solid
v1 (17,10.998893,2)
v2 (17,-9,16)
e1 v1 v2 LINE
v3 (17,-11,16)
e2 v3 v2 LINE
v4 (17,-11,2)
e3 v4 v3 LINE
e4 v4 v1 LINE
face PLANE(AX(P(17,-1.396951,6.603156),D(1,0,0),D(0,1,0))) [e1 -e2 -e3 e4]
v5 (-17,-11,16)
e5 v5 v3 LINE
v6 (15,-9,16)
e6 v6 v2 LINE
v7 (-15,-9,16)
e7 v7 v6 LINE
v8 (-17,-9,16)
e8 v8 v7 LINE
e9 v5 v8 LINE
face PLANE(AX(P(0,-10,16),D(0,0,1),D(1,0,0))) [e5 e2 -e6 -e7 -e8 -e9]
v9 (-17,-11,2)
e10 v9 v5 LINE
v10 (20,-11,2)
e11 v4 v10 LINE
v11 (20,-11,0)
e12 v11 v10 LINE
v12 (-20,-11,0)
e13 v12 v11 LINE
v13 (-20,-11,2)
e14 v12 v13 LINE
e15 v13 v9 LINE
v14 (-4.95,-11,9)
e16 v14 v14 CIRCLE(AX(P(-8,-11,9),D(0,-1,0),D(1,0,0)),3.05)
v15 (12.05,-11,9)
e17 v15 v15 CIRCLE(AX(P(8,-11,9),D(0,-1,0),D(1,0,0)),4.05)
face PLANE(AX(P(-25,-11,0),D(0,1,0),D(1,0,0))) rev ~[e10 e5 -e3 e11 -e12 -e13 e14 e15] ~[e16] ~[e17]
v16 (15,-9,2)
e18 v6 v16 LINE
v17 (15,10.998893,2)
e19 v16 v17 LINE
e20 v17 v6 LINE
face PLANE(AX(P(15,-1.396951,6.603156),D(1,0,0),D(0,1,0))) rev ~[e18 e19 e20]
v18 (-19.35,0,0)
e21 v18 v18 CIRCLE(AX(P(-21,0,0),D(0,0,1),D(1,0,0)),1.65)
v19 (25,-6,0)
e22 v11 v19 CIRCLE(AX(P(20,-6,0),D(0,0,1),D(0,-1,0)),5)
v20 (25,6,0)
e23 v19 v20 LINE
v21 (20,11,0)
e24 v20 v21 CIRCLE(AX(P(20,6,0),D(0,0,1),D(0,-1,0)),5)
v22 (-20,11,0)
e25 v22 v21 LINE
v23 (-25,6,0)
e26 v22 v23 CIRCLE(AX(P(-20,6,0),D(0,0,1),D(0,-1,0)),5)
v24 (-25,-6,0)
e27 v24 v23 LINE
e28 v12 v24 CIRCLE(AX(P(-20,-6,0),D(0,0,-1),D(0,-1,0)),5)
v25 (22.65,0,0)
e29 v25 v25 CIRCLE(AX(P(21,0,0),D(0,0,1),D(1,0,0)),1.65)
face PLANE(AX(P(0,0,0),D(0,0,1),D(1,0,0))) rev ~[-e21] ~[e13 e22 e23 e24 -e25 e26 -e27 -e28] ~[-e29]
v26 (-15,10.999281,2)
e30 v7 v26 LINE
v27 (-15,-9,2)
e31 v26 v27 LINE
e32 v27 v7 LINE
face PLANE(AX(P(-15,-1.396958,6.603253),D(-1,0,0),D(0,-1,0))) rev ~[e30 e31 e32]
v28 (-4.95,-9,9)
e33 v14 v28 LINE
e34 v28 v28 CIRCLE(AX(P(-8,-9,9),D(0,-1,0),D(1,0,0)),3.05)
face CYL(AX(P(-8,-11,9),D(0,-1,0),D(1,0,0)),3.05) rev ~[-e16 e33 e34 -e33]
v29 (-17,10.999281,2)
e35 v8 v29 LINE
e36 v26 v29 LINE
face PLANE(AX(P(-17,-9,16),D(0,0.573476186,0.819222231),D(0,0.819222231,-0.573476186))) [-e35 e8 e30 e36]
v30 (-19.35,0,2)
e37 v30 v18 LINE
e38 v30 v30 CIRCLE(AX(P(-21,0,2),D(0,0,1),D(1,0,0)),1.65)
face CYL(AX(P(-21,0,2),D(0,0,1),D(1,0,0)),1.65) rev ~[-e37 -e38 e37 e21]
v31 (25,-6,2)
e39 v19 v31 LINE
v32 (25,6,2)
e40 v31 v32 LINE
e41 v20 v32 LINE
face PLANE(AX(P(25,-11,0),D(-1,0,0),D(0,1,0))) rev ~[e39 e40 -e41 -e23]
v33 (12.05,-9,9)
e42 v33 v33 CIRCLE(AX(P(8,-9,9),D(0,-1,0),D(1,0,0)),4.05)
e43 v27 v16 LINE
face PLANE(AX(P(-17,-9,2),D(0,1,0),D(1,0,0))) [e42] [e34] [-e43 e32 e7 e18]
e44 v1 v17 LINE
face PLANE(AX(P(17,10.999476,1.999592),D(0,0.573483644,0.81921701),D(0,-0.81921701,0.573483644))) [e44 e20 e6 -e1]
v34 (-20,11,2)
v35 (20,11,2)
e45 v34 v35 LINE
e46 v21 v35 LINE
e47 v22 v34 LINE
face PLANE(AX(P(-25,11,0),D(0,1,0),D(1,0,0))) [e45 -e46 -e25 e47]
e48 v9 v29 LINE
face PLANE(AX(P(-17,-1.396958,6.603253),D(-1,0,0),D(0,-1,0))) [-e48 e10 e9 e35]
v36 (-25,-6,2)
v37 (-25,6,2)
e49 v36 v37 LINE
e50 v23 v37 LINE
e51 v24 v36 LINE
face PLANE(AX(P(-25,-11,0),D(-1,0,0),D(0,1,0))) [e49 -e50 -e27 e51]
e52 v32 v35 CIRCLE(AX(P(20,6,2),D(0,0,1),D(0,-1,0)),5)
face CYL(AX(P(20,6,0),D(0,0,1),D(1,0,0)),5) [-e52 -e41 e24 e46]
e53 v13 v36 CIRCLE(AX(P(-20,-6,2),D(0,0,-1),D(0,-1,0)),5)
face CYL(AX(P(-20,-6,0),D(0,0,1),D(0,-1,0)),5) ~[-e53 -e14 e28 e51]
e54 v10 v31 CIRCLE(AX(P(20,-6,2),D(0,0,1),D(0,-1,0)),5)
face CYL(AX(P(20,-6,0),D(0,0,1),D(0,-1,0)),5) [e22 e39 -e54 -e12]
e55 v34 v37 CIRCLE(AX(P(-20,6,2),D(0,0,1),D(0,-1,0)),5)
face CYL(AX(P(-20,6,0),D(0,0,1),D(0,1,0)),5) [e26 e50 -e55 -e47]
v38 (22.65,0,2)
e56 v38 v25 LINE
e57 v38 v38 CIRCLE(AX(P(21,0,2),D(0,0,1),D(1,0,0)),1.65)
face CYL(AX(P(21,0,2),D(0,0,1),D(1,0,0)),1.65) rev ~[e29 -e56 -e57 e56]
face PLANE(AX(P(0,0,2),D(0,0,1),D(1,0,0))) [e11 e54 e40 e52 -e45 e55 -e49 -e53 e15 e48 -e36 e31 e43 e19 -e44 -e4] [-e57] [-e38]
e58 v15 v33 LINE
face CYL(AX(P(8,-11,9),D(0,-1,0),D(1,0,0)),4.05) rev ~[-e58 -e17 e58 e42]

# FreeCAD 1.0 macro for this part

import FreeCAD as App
import Part
import Sketcher
from FreeCAD import Vector


def edges_at(feature, points):
    """Names of the edges that pass closest to the given points."""
    edges = feature.Shape.Edges
    near = lambda p: min(range(len(edges)), key=lambda i: edges[i].distToShape(Part.Vertex(*p))[0])
    return sorted({f"Edge{near(p) + 1}" for p in points})


def add_polygon(sketch, points):
    """Adds a closed chain of lines whose ends are joined by coincident constraints."""
    first, n = sketch.GeometryCount, len(points)
    for a, b in zip(points, points[1:] + points[:1]):
        sketch.addGeometry(Part.LineSegment(App.Vector(*a, 0), App.Vector(*b, 0)), False)
    for i in range(n):
        sketch.addConstraint(Sketcher.Constraint("Coincident", first + i, 2, first + (i + 1) % n, 1))

doc = App.newDocument("Part")
body = doc.addObject("PartDesign::Body", "Body")

# Sketch on XY plane
sketch1 = doc.addObject("Sketcher::SketchObject", "Sketch")
body.addObject(sketch1)
sketch1.AttachmentSupport = (doc.XY_Plane, [""])
sketch1.MapMode = "FlatFace"
add_polygon(sketch1, [(-25, 11), (-25, -11), (25, -11), (25, 11)])  # lines 0-3
sketch1.addConstraint([
    Sketcher.Constraint("Vertical", 0),
    Sketcher.Constraint("Horizontal", 1),
    Sketcher.Constraint("Vertical", 2),
    Sketcher.Constraint("Horizontal", 3),
    Sketcher.Constraint("Symmetric", 0, 2, 2, 2, -1, 1),
    Sketcher.Constraint("DistanceX", 1, 1, 1, 2, 50.0),
    Sketcher.Constraint("DistanceY", 0, 2, 0, 1, 22.0),
])
pad1 = doc.addObject("PartDesign::Pad", "Pad")
body.addObject(pad1)
pad1.Profile = sketch1
pad1.Length = 2

# Sketch on XY plane
sketch2 = doc.addObject("Sketcher::SketchObject", "Sketch001")
body.addObject(sketch2)
sketch2.AttachmentSupport = (doc.XY_Plane, [""])
sketch2.MapMode = "FlatFace"
sketch2.AttachmentOffset = App.Placement(Vector(0, 0, 2), App.Rotation())
add_polygon(sketch2, [(-17, -9), (-17, -11), (17, -11), (17, -9)])  # lines 0-3
sketch2.addConstraint([
    Sketcher.Constraint("Vertical", 0),
    Sketcher.Constraint("Horizontal", 1),
    Sketcher.Constraint("Vertical", 2),
    Sketcher.Constraint("Horizontal", 3),
    Sketcher.Constraint("DistanceX", 1, 1, 1, 2, 34.0),
    Sketcher.Constraint("DistanceY", 0, 2, 0, 1, 2.0),
    Sketcher.Constraint("DistanceX", 0, 2, -1, 1, 17.0),
    Sketcher.Constraint("DistanceY", 0, 2, -1, 1, 11.0),
])
pad2 = doc.addObject("PartDesign::Pad", "Pad001")
body.addObject(pad2)
pad2.Profile = sketch2
pad2.Length = 14

# Sketch on XZ plane
sketch3 = doc.addObject("Sketcher::SketchObject", "Sketch002")
body.addObject(sketch3)
sketch3.AttachmentSupport = (doc.XZ_Plane, [""])
sketch3.MapMode = "FlatFace"
sketch3.AttachmentOffset = App.Placement(Vector(0, 0, 11), App.Rotation())
sketch3.addGeometry([
    Part.Circle(Vector(-8, 9, 0), Vector(0, 0, 1), 3.05),
    Part.Circle(Vector(8, 9, 0), Vector(0, 0, 1), 4.05),
], False)
sketch3.addConstraint([
    Sketcher.Constraint("Symmetric", 0, 3, 1, 3, -2),
    Sketcher.Constraint("Diameter", 0, 6.1),
    Sketcher.Constraint("Diameter", 1, 8.1),
    Sketcher.Constraint("DistanceX", 0, 3, -1, 1, 8.0),
    Sketcher.Constraint("DistanceY", -1, 1, 0, 3, 9.0),
])
pocket1 = doc.addObject("PartDesign::Pocket", "Pocket")
body.addObject(pocket1)
pocket1.Profile = sketch3
pocket1.Length = 2

# Sketch on XY plane
sketch4 = doc.addObject("Sketcher::SketchObject", "Sketch003")
body.addObject(sketch4)
sketch4.AttachmentSupport = (doc.XY_Plane, [""])
sketch4.MapMode = "FlatFace"
sketch4.AttachmentOffset = App.Placement(Vector(0, 0, 2), App.Rotation())
sketch4.addGeometry([
    Part.Circle(Vector(-21, 0, 0), Vector(0, 0, 1), 1.65),
    Part.Circle(Vector(21, 0, 0), Vector(0, 0, 1), 1.65),
], False)
sketch4.addConstraint([
    Sketcher.Constraint("Equal", 0, 1),
    Sketcher.Constraint("Symmetric", 0, 3, 1, 3, -1, 1),
    Sketcher.Constraint("PointOnObject", 0, 3, -1),
    Sketcher.Constraint("Diameter", 0, 3.3),
    Sketcher.Constraint("DistanceX", 0, 3, -1, 1, 21.0),
])
pocket2 = doc.addObject("PartDesign::Pocket", "Pocket001")
body.addObject(pocket2)
pocket2.Profile = sketch4
pocket2.Length = 2

# Sketch on YZ plane
sketch5 = doc.addObject("Sketcher::SketchObject", "Sketch004")
body.addObject(sketch5)
sketch5.AttachmentSupport = (doc.YZ_Plane, [""])
sketch5.MapMode = "FlatFace"
sketch5.AttachmentOffset = App.Placement(Vector(0, 0, 17), App.Rotation())
add_polygon(sketch5, [(10.999476, 1.999592), (-9, 16), (-9, 2)])  # lines 0-2
sketch5.addConstraint([
    Sketcher.Constraint("Vertical", 1),
    Sketcher.Constraint("DistanceY", 1, 2, 1, 1, 14.0),
    Sketcher.Constraint("DistanceX", 0, 2, -1, 1, 9.0),
    Sketcher.Constraint("DistanceY", -1, 1, 0, 2, 16.0),
    Sketcher.Constraint("Distance", 0, 24.412916),
    Sketcher.Constraint("Distance", 2, 19.999476),
])
pad3 = doc.addObject("PartDesign::Pad", "Pad002")
body.addObject(pad3)
pad3.Profile = sketch5
pad3.Length = 2
pad3.Reversed = True

# Sketch on YZ plane
sketch6 = doc.addObject("Sketcher::SketchObject", "Sketch005")
body.addObject(sketch6)
sketch6.AttachmentSupport = (doc.YZ_Plane, [""])
sketch6.MapMode = "FlatFace"
sketch6.AttachmentOffset = App.Placement(Vector(0, 0, -17), App.Rotation())
add_polygon(sketch6, [(-9, 2), (-9, 16), (10.999475, 1.999864)])  # lines 0-2
sketch6.addConstraint([
    Sketcher.Constraint("Vertical", 0),
    Sketcher.Constraint("DistanceY", 0, 1, 0, 2, 14.0),
    Sketcher.Constraint("DistanceX", 0, 2, -1, 1, 9.0),
    Sketcher.Constraint("DistanceY", -1, 1, 0, 2, 16.0),
    Sketcher.Constraint("Distance", 1, 24.412759),
    Sketcher.Constraint("Distance", 2, 19.999475),
])
pad4 = doc.addObject("PartDesign::Pad", "Pad003")
body.addObject(pad4)
pad4.Profile = sketch6
pad4.Length = 2
doc.recompute()

fillet = doc.addObject("PartDesign::Fillet", "Fillet")
body.addObject(fillet)
fillet.Base = (pad4, edges_at(pad4, [(-25, 11, 1), (-25, -11, 1)]))
fillet.Radius = 5
doc.recompute()

fillet2 = doc.addObject("PartDesign::Fillet", "Fillet001")
body.addObject(fillet2)
fillet2.Base = (fillet, edges_at(fillet, [(25, -11, 1), (25, 11, 1)]))
fillet2.Radius = 5

doc.recompute()
